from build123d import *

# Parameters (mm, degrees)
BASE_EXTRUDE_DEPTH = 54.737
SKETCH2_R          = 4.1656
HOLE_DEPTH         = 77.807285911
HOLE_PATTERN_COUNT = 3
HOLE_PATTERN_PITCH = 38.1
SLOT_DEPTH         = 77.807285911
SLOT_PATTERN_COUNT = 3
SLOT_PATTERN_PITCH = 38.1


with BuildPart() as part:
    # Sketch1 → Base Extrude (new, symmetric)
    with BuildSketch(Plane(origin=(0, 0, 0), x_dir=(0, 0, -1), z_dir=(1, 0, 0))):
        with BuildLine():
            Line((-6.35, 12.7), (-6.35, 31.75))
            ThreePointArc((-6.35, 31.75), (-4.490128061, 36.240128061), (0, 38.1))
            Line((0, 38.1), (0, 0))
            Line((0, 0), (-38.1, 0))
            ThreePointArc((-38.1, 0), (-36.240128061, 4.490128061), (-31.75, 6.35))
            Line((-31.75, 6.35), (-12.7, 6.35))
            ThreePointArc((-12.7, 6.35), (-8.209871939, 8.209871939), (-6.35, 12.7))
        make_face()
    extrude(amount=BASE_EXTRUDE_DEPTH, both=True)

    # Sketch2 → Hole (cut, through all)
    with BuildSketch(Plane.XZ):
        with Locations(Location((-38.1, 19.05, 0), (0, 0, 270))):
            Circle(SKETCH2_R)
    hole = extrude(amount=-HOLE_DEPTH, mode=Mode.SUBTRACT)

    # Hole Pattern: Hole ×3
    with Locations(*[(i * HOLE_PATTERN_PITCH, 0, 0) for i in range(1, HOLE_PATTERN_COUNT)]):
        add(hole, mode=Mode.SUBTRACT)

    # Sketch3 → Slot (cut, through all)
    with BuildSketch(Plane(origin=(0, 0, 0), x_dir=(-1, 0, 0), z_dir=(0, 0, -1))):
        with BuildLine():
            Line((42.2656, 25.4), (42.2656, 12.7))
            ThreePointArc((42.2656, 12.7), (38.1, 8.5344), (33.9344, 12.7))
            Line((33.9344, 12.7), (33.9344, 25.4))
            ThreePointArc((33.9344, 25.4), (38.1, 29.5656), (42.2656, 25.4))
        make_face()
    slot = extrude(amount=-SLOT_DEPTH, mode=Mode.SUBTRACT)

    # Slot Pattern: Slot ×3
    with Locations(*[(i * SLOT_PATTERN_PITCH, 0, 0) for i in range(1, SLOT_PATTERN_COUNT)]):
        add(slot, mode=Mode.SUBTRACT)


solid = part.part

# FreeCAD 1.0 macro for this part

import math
import FreeCAD as App
import Part
import Sketcher

V = App.Vector
Q = App.Units.Quantity

doc = App.newDocument("Part")
body = doc.addObject("PartDesign::Body", "Body")

sketch1 = doc.addObject("Sketcher::SketchObject", "Sketch")
body.addObject(sketch1)
sketch1.AttachmentSupport = (doc.YZ_Plane, [""])
sketch1.MapMode = "FlatFace"
sketch1.addGeometry(Part.LineSegment(V(32, 6, 0), V(13, 6, 0)), False)
sketch1.addGeometry(Part.ArcOfCircle(Part.Circle(V(13, 13, 0), V(0, 0, 1), 6), math.radians(180), math.radians(270)), False)
sketch1.addGeometry(Part.LineSegment(V(6, 13, 0), V(6, 32, 0)), False)
sketch1.addGeometry(Part.ArcOfCircle(Part.Circle(V(0, 32, 0), V(0, 0, 1), 6), math.radians(0), math.radians(90)), False)
sketch1.addGeometry(Part.LineSegment(V(0, 38, 0), V(0, 0, 0)), False)
sketch1.addGeometry(Part.LineSegment(V(0, 0, 0), V(38, 0, 0)), False)
sketch1.addGeometry(Part.ArcOfCircle(Part.Circle(V(32, 0, 0), V(0, 0, 1), 6), math.radians(0), math.radians(90)), False)
sketch1.addConstraint(Sketcher.Constraint("Tangent", 0, 2, 1, 2))
sketch1.addConstraint(Sketcher.Constraint("Tangent", 1, 1, 2, 1))
sketch1.addConstraint(Sketcher.Constraint("Tangent", 2, 2, 3, 1))
sketch1.addConstraint(Sketcher.Constraint("Coincident", 3, 2, 4, 1))
sketch1.addConstraint(Sketcher.Constraint("Coincident", 4, 2, 5, 1))
sketch1.addConstraint(Sketcher.Constraint("Coincident", 5, 2, 6, 1))
sketch1.addConstraint(Sketcher.Constraint("Tangent", 6, 2, 0, 1))
sketch1.addConstraint(Sketcher.Constraint("Horizontal", 0))
sketch1.addConstraint(Sketcher.Constraint("Vertical", 2))
sketch1.addConstraint(Sketcher.Constraint("Vertical", 4))
sketch1.addConstraint(Sketcher.Constraint("Horizontal", 5))
sketch1.addConstraint(Sketcher.Constraint("Coincident", 4, 2, -1, 1))
sketch1.addConstraint(Sketcher.Constraint("Equal", 1, 3))
sketch1.addConstraint(Sketcher.Constraint("Equal", 3, 6))
sketch1.addConstraint(Sketcher.Constraint("PointOnObject", 3, 3, -2))
sketch1.addConstraint(Sketcher.Constraint("PointOnObject", 6, 3, -1))
sketch1.addConstraint(Sketcher.Constraint("Equal", 0, 2))
sketch1.addConstraint(Sketcher.Constraint("Radius", 1, Q("0.25 in")))
sketch1.addConstraint(Sketcher.Constraint("DistanceX", 5, 1, 5, 2, Q("1.5 in")))
pad1 = doc.addObject("PartDesign::Pad", "Pad")
body.addObject(pad1)
pad1.Profile = sketch1
pad1.Length = Q("4.31 in")
pad1.Midplane = True

sketch2 = doc.addObject("Sketcher::SketchObject", "Sketch001")
body.addObject(sketch2)
sketch2.AttachmentSupport = (doc.XZ_Plane, [""])
sketch2.MapMode = "FlatFace"
sketch2.addGeometry(Part.Circle(V(-38.1, 19.1, 0), V(0, 0, 1), 4.2), False)
sketch2.addConstraint(Sketcher.Constraint("Diameter", 0, Q("0.328 in")))
sketch2.addConstraint(Sketcher.Constraint("DistanceX", 0, 3, -1, 1, Q("1.5 in")))
sketch2.addConstraint(Sketcher.Constraint("DistanceY", -1, 1, 0, 3, Q("0.75 in")))
pocket1 = doc.addObject("PartDesign::Pocket", "Pocket")
body.addObject(pocket1)
pocket1.Profile = sketch2
pocket1.Type = "ThroughAll"
doc.recompute()

linearpattern = doc.addObject("PartDesign::LinearPattern", "LinearPattern")
body.addObject(linearpattern)
linearpattern.Originals = [pocket1]
linearpattern.Direction = (doc.X_Axis, [""])
linearpattern.Mode = "offset"
linearpattern.Offset = Q("1.5 in")
linearpattern.Occurrences = 3
body.Tip = linearpattern

sketch3 = doc.addObject("Sketcher::SketchObject", "Sketch002")
body.addObject(sketch3)
sketch3.AttachmentSupport = (doc.XY_Plane, [""])
sketch3.MapMode = "FlatFace"
sketch3.addGeometry(Part.LineSegment(V(-42.3, 12.7, 0), V(-42.3, 25.4, 0)), False)
sketch3.addGeometry(Part.ArcOfCircle(Part.Circle(V(-38.1, 25.4, 0), V(0, 0, 1), 4.2), math.radians(0), math.radians(180)), False)
sketch3.addGeometry(Part.LineSegment(V(-33.9, 25.4, 0), V(-33.9, 12.7, 0)), False)
sketch3.addGeometry(Part.ArcOfCircle(Part.Circle(V(-38.1, 12.7, 0), V(0, 0, 1), 4.2), math.radians(180), math.radians(360)), False)
sketch3.addConstraint(Sketcher.Constraint("Tangent", 0, 2, 1, 2))
sketch3.addConstraint(Sketcher.Constraint("Tangent", 1, 1, 2, 1))
sketch3.addConstraint(Sketcher.Constraint("Tangent", 2, 2, 3, 2))
sketch3.addConstraint(Sketcher.Constraint("Tangent", 3, 1, 0, 1))
sketch3.addConstraint(Sketcher.Constraint("Vertical", 0))
sketch3.addConstraint(Sketcher.Constraint("Vertical", 2))
sketch3.addConstraint(Sketcher.Constraint("DistanceY", 0, 1, 0, 2, Q("0.5 in")))
sketch3.addConstraint(Sketcher.Constraint("DistanceY", -1, 1, 1, 3, Q("1 in")))
sketch3.addConstraint(Sketcher.Constraint("Radius", 1, Q("0.164 in")))
sketch3.addConstraint(Sketcher.Constraint("DistanceX", 1, 3, -1, 1, Q("1.5 in")))
pocket2 = doc.addObject("PartDesign::Pocket", "Pocket001")
body.addObject(pocket2)
pocket2.Profile = sketch3
pocket2.Type = "ThroughAll"
pocket2.Reversed = True
doc.recompute()

linearpattern2 = doc.addObject("PartDesign::LinearPattern", "LinearPattern001")
body.addObject(linearpattern2)
linearpattern2.Originals = [pocket2]
linearpattern2.Direction = (doc.X_Axis, [""])
linearpattern2.Mode = "offset"
linearpattern2.Offset = Q("1.5 in")
linearpattern2.Occurrences = 3
body.Tip = linearpattern2

doc.recompute()
